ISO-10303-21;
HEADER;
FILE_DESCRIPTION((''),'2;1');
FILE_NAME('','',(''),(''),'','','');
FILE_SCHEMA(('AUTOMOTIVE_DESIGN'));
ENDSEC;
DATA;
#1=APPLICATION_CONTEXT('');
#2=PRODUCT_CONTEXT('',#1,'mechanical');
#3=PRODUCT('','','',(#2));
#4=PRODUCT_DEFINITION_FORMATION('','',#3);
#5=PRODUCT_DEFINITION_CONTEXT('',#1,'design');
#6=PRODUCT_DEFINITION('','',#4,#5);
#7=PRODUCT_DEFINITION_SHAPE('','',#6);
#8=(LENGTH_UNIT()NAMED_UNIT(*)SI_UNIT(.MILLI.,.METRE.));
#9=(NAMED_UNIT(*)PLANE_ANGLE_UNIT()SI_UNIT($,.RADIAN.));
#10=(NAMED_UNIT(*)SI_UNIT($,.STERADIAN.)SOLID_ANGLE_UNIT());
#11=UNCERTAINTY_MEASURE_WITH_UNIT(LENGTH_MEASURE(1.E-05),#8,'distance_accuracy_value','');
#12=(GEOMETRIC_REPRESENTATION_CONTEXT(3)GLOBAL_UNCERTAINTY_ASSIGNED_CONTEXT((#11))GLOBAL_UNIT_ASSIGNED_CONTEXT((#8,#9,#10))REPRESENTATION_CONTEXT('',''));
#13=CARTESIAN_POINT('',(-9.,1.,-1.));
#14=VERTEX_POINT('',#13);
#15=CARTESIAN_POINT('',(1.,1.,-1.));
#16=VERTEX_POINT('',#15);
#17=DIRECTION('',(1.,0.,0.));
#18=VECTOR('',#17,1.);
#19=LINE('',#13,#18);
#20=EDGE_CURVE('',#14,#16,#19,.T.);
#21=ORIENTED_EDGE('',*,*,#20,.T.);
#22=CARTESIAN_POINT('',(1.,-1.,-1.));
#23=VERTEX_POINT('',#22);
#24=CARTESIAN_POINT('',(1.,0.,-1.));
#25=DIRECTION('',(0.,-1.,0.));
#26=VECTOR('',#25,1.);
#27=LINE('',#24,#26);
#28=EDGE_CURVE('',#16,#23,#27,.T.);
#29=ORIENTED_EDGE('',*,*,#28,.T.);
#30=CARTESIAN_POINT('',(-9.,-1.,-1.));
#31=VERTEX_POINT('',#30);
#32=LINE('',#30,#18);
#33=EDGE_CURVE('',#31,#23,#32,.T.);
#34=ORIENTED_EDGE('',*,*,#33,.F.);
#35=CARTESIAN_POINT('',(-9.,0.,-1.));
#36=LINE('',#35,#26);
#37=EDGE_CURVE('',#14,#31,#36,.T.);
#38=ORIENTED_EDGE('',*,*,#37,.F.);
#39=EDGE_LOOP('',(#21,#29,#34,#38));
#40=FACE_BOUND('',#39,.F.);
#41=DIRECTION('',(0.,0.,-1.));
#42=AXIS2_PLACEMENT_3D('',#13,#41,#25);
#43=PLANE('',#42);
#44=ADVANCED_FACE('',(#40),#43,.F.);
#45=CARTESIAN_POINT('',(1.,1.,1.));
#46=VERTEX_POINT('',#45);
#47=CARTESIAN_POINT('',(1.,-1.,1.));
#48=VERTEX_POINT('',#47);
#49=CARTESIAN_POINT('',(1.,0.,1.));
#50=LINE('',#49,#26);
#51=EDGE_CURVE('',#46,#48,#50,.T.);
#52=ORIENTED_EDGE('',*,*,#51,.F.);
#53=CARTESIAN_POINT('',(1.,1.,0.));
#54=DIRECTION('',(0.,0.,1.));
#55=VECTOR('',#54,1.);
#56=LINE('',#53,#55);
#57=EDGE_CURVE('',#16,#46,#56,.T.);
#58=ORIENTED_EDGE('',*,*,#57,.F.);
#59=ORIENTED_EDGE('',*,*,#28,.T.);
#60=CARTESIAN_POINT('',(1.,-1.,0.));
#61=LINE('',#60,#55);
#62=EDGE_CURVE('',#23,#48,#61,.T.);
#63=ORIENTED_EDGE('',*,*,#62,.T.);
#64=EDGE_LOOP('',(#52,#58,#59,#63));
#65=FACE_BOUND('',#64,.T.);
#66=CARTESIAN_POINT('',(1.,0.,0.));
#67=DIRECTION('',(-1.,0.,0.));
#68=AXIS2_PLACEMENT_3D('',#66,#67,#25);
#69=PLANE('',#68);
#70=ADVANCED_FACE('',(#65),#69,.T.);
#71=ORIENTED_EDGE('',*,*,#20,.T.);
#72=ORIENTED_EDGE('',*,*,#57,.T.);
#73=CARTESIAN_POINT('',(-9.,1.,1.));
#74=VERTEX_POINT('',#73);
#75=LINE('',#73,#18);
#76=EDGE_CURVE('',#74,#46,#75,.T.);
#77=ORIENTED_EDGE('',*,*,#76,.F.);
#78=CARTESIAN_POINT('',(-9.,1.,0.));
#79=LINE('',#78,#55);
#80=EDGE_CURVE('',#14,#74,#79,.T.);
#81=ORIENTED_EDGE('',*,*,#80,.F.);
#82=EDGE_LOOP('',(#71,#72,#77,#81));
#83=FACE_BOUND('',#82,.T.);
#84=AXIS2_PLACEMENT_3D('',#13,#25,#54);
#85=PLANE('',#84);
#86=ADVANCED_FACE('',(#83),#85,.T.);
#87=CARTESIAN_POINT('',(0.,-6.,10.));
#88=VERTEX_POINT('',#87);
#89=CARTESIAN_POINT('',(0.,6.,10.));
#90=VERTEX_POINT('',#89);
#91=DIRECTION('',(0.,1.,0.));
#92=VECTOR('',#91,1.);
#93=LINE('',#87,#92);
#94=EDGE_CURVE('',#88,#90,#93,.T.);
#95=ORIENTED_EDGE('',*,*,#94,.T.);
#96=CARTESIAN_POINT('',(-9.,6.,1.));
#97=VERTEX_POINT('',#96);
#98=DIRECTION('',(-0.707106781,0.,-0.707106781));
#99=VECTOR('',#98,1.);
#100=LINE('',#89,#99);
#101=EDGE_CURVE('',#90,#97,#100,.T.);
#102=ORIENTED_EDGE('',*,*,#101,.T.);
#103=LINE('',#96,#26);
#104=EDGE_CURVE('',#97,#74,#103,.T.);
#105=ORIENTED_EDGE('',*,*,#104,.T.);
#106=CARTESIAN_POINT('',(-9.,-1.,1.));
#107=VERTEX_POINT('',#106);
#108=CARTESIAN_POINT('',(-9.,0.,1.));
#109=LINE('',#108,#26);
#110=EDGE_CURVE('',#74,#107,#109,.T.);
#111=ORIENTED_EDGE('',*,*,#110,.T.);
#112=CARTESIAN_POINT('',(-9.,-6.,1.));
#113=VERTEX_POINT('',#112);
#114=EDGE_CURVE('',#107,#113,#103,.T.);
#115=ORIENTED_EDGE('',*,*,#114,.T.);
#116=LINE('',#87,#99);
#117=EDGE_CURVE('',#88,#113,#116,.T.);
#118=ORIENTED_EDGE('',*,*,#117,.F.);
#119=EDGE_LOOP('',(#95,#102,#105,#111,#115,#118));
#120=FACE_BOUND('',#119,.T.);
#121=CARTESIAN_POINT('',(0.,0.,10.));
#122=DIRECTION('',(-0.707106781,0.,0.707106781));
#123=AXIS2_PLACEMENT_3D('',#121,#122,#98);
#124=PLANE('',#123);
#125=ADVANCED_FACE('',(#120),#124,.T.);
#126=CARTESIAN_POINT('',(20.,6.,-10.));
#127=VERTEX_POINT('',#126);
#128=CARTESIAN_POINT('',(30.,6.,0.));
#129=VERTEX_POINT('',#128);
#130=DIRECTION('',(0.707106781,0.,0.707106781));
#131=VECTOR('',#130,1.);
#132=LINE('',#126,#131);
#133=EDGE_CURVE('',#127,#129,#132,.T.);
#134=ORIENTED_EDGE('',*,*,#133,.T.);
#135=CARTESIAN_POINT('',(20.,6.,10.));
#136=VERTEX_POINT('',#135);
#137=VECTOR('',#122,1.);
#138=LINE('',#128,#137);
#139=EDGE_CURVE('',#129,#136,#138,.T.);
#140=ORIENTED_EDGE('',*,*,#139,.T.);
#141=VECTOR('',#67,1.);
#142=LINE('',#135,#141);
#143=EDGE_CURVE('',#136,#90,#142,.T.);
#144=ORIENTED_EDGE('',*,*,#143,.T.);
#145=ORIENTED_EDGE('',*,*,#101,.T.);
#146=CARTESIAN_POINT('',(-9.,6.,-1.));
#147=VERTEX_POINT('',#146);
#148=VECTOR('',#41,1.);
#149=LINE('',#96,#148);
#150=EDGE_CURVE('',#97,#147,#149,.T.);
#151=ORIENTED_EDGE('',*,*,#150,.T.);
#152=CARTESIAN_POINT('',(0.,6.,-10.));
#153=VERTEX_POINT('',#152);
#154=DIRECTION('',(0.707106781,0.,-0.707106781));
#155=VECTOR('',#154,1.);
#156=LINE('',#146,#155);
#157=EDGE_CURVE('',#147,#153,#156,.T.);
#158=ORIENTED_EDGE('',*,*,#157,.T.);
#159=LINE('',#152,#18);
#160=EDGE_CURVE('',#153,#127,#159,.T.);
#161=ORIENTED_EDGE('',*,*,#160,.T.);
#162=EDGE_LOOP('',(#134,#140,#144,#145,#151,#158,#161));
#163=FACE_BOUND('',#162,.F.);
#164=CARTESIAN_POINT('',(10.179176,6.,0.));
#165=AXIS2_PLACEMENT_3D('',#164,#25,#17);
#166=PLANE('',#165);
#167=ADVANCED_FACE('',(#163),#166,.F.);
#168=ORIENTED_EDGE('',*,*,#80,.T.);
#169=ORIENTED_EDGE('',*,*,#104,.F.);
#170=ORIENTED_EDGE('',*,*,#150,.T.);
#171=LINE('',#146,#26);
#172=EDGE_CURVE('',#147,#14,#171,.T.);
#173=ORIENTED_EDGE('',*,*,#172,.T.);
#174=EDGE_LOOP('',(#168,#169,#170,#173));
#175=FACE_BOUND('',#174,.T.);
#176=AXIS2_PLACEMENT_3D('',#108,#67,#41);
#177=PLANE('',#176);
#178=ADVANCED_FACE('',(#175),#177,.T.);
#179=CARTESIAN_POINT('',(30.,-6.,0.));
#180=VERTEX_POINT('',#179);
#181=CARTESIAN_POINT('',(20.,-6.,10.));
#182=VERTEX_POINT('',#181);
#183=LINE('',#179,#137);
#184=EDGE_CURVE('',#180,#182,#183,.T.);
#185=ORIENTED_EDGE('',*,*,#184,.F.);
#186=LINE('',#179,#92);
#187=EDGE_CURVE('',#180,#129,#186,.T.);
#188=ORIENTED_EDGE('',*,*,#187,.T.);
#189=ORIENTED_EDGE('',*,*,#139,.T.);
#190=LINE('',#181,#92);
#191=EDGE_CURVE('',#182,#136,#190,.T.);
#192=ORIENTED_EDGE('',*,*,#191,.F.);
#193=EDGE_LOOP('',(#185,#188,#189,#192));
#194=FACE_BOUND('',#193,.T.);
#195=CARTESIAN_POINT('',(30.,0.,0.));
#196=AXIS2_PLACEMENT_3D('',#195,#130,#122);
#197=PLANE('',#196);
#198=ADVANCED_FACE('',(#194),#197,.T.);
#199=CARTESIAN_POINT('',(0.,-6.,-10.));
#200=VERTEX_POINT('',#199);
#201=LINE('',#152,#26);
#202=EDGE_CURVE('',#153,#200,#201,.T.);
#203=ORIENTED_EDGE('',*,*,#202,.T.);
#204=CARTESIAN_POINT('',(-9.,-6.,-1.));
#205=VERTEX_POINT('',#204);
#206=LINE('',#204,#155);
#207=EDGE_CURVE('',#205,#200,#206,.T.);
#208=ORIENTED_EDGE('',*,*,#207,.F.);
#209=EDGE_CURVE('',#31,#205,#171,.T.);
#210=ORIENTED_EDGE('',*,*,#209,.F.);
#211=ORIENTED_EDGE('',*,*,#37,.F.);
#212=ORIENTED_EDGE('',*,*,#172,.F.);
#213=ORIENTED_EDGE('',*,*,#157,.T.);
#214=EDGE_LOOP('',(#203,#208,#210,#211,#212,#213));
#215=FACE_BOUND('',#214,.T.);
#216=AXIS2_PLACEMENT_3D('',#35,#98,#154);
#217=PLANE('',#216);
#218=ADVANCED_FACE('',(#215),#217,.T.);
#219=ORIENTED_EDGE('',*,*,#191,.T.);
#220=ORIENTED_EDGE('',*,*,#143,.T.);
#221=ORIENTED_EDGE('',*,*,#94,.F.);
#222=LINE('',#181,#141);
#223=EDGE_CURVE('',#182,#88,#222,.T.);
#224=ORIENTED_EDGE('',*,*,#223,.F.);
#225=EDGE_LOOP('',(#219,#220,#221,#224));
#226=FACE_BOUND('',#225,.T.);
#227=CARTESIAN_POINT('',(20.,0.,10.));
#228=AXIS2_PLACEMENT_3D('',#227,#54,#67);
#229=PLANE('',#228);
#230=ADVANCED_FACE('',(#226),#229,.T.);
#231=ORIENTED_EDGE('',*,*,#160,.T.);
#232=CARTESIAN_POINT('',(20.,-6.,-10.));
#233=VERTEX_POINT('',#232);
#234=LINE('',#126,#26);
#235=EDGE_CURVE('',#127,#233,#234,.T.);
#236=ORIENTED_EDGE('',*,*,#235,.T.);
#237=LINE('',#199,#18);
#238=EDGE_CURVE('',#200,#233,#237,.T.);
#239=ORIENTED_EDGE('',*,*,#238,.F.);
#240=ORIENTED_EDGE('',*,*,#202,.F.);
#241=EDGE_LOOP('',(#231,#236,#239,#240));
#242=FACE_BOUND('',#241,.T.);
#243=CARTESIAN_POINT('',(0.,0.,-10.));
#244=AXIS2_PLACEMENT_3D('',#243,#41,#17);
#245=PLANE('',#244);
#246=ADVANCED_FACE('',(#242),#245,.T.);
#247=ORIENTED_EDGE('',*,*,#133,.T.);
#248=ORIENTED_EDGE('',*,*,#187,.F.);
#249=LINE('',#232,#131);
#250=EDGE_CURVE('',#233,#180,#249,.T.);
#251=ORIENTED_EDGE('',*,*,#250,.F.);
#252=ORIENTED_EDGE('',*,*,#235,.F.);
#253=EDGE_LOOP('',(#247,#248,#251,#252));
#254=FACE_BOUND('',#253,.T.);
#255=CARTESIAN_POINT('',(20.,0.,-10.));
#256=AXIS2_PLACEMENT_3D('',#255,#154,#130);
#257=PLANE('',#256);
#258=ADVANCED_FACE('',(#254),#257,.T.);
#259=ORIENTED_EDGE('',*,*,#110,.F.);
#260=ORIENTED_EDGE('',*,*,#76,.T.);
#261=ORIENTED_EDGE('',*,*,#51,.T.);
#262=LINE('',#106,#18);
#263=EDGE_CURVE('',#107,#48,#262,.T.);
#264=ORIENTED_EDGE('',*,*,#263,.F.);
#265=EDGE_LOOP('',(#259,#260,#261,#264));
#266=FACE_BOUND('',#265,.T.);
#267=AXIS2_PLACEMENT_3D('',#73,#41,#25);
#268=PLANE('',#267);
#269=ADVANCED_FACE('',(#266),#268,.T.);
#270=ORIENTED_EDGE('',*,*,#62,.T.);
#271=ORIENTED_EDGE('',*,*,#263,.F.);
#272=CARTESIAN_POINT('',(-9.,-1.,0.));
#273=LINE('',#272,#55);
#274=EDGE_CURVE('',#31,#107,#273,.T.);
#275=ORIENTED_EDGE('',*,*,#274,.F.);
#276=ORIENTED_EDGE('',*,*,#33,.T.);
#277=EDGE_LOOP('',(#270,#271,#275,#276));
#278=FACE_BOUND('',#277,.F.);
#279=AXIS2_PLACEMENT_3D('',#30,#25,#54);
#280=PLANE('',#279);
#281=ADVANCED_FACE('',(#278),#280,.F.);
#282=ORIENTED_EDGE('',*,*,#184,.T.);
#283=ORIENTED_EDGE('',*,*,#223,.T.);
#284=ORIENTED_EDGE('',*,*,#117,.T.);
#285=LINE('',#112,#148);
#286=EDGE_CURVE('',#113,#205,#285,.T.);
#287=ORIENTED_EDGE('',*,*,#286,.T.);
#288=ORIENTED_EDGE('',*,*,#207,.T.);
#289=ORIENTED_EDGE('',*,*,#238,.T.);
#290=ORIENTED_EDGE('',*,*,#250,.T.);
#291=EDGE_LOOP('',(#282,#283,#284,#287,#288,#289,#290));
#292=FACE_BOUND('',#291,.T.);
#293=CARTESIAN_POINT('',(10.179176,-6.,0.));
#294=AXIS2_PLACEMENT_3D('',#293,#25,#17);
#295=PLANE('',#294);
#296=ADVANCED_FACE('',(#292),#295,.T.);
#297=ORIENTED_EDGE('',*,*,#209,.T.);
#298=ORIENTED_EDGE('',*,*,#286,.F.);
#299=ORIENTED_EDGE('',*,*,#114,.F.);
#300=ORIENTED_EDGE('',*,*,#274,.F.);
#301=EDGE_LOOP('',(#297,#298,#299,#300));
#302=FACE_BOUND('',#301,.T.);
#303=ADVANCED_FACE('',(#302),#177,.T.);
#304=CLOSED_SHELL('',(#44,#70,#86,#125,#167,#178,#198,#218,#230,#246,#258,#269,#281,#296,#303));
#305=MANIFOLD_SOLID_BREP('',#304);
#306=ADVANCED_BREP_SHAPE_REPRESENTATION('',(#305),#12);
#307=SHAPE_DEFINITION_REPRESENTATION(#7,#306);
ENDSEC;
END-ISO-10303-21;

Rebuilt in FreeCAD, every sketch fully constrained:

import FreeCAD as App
import Part
import Sketcher
from FreeCAD import Vector
Q = App.Units.Quantity


def add_polygon(sketch, points):
    """Adds a closed chain of lines whose ends are joined by coincident constraints."""
    first, n = sketch.GeometryCount, len(points)
    for a, b in zip(points, points[1:] + points[:1]):
        sketch.addGeometry(Part.LineSegment(App.Vector(*a, 0), App.Vector(*b, 0)), False)
    for i in range(n):
        sketch.addConstraint(Sketcher.Constraint("Coincident", first + i, 2, first + (i + 1) % n, 1))

doc = App.newDocument("Part")
body = doc.addObject("PartDesign::Body", "Body")

# Sketch on XZ plane
sketch1 = doc.addObject("Sketcher::SketchObject", "Sketch")
body.addObject(sketch1)
sketch1.AttachmentSupport = (doc.XZ_Plane, [""])
sketch1.MapMode = "FlatFace"
add_polygon(sketch1, [(0, 10), (-9, 1), (-9, -1), (0, -10), (20, -10), (30, 0), (20, 10)])  # lines 0-6
sketch1.addConstraint([
    Sketcher.Constraint("Vertical", 1),
    Sketcher.Constraint("Horizontal", 3),
    Sketcher.Constraint("Horizontal", 6),
    Sketcher.Constraint("Symmetric", 2, 2, 6, 2, -1, 1),
    Sketcher.Constraint("PointOnObject", 2, 2, -2),
    Sketcher.Constraint("PointOnObject", 4, 2, -1),
    Sketcher.Constraint("Perpendicular", 0, 2),
    Sketcher.Constraint("Perpendicular", 2, 4),
    Sketcher.Constraint("Perpendicular", 4, 5),
    Sketcher.Constraint("Vertical", 3, 2, 5, 2),
    Sketcher.Constraint("DistanceX", 3, 1, 3, 2, Q("20 mm")),
    Sketcher.Constraint("DistanceY", 1, 2, 1, 1, Q("2 mm")),
    Sketcher.Constraint("DistanceX", 0, 2, -1, 1, Q("9 mm")),
])
pad1 = doc.addObject("PartDesign::Pad", "Pad")
body.addObject(pad1)
pad1.Profile = sketch1
pad1.Type = "TwoLengths"
pad1.Length = 6
pad1.Length2 = 6

# Sketch on YZ plane
sketch2 = doc.addObject("Sketcher::SketchObject", "Sketch001")
body.addObject(sketch2)
sketch2.AttachmentSupport = (doc.YZ_Plane, [""])
sketch2.MapMode = "FlatFace"
sketch2.AttachmentOffset = App.Placement(Vector(0, 0, -9), App.Rotation())
add_polygon(sketch2, [(1, 1), (1, -1), (-1, -1), (-1, 1)])  # lines 0-3
sketch2.addConstraint([
    Sketcher.Constraint("Vertical", 0),
    Sketcher.Constraint("Horizontal", 1),
    Sketcher.Constraint("Vertical", 2),
    Sketcher.Constraint("Horizontal", 3),
    Sketcher.Constraint("Symmetric", 0, 2, 2, 2, -1, 1),
    Sketcher.Constraint("Equal", 3, 0),
    Sketcher.Constraint("DistanceX", 1, 2, 1, 1, Q("2 mm")),
])
pocket1 = doc.addObject("PartDesign::Pocket", "Pocket")
body.addObject(pocket1)
pocket1.Profile = sketch2
pocket1.Length = 10
pocket1.Reversed = True

doc.recompute()
